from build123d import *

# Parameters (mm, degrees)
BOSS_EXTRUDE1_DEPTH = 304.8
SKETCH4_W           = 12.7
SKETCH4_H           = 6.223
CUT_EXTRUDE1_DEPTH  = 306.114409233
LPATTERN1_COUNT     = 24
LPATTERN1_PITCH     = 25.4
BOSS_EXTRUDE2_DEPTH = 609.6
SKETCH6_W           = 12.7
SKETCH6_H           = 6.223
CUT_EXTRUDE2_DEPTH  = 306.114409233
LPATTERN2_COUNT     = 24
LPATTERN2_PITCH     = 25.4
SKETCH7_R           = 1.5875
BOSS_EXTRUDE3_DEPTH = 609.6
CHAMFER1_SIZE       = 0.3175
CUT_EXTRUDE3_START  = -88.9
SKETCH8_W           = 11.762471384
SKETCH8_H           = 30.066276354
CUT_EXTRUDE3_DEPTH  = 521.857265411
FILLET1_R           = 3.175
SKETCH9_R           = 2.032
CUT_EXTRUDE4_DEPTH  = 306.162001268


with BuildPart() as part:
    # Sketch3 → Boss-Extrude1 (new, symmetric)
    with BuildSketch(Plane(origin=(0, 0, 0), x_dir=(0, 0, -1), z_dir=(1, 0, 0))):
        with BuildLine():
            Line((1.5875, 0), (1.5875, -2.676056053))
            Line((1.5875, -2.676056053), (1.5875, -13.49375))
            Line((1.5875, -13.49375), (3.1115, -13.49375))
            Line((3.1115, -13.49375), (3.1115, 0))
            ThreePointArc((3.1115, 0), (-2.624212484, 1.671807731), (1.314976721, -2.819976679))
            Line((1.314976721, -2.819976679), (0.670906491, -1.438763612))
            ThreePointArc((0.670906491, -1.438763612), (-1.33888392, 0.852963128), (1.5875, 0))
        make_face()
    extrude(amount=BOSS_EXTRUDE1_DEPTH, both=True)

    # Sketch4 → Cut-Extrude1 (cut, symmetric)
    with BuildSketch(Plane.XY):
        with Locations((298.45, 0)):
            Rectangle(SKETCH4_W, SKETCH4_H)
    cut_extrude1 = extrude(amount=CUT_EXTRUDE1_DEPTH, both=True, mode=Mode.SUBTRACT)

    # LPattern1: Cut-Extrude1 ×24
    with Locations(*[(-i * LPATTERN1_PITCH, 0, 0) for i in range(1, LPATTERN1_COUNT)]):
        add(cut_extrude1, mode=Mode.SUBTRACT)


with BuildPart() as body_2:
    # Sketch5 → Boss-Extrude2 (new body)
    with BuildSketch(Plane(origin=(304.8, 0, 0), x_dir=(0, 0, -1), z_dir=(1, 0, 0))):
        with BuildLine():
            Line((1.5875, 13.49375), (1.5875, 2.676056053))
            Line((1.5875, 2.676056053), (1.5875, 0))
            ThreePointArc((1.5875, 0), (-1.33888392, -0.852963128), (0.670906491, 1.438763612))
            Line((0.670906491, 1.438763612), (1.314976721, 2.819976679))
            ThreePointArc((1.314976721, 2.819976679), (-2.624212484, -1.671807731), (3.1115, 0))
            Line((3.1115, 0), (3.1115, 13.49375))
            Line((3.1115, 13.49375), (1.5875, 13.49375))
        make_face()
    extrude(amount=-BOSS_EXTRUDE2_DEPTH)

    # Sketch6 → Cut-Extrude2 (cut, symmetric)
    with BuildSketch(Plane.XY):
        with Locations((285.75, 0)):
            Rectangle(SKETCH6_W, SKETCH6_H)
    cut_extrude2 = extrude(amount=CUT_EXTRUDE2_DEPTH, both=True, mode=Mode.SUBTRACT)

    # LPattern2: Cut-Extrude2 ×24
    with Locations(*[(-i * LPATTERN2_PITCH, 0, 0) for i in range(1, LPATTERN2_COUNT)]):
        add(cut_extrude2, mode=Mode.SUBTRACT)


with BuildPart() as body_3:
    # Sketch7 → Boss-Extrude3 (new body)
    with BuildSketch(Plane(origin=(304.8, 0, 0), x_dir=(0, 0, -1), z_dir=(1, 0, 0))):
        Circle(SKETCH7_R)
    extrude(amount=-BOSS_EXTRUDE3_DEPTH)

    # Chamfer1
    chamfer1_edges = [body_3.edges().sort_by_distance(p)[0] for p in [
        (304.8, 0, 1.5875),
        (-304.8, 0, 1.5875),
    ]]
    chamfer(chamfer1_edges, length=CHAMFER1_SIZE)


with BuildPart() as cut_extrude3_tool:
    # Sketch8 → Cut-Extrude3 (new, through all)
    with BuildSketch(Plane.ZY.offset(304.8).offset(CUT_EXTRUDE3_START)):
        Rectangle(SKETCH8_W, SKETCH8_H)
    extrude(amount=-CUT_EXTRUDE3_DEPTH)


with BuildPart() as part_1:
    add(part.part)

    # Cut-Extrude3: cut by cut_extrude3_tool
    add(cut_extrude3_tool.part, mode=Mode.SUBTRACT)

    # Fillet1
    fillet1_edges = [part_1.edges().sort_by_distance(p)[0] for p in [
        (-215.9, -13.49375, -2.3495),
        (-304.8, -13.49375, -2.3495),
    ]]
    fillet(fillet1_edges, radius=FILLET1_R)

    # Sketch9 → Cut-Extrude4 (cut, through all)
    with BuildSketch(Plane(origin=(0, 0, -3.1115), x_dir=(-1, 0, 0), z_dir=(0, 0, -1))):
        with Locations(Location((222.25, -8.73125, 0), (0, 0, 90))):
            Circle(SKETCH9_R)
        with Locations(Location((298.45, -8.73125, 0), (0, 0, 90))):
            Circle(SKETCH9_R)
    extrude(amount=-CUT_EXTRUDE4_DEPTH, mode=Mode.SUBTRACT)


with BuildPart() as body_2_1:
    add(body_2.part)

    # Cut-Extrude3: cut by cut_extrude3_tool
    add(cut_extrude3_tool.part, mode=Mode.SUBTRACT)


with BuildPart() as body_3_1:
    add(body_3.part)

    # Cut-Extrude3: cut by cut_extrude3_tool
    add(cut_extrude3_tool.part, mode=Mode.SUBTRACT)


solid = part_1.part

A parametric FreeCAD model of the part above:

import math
import FreeCAD as App
import Part
import Sketcher
Q = App.Units.Quantity


def edges_at(feature, points):
    """Names of the edges that pass closest to the given points."""
    edges = feature.Shape.Edges
    near = lambda p: min(range(len(edges)), key=lambda i: edges[i].distToShape(Part.Vertex(*p))[0])
    return sorted({f"Edge{near(p) + 1}" for p in points})


def add_polygon(sketch, points):
    """Adds a closed chain of lines whose ends are joined by coincident constraints."""
    first, n = sketch.GeometryCount, len(points)
    for a, b in zip(points, points[1:] + points[:1]):
        sketch.addGeometry(Part.LineSegment(App.Vector(*a, 0), App.Vector(*b, 0)), False)
    for i in range(n):
        sketch.addConstraint(Sketcher.Constraint("Coincident", first + i, 2, first + (i + 1) % n, 1))

doc = App.newDocument("Part")
body = doc.addObject("PartDesign::Body", "Body")

# Sketch on YZ plane
sketch1 = body.newObject("Sketcher::SketchObject", "Sketch")
sketch1.AttachmentSupport = (doc.getObject("YZ_Plane"), [""])
sketch1.MapMode = "FlatFace"
sketch1.addGeometry([
    Part.LineSegment(App.Vector(0, -1.6, 0), App.Vector(-13.5, -1.6, 0)),  # 0
    Part.LineSegment(App.Vector(-13.5, -1.6, 0), App.Vector(-13.5, -3.1, 0)),  # 1
    Part.LineSegment(App.Vector(-13.5, -3.1, 0), App.Vector(0, -3.1, 0)),  # 2
    Part.ArcOfCircle(Part.Circle(App.Vector(0, 0, 0), App.Vector(0, 0, 1), 3.1), math.radians(-90), math.radians(205)),  # 3
    Part.LineSegment(App.Vector(-2.8, -1.3, 0), App.Vector(-1.4, -0.7, 0)),  # 4
    Part.ArcOfCircle(Part.Circle(App.Vector(0, 0, 0), App.Vector(0, 0, 1), 1.6), math.radians(-90), math.radians(205)),  # 5
], False)
sketch1.addConstraint([
    Sketcher.Constraint("Coincident", 0, 2, 1, 1),
    Sketcher.Constraint("Coincident", 1, 2, 2, 1),
    Sketcher.Constraint("Tangent", 2, 2, 3, 1),
    Sketcher.Constraint("Coincident", 3, 2, 4, 1),
    Sketcher.Constraint("Coincident", 4, 2, 5, 2),
    Sketcher.Constraint("Tangent", 5, 1, 0, 1),
    Sketcher.Constraint("Horizontal", 0),
    Sketcher.Constraint("Vertical", 1),
    Sketcher.Constraint("Horizontal", 2),
    Sketcher.Constraint("Coincident", 3, 3, -1, 1),
    Sketcher.Constraint("Coincident", 5, 3, -1, 1),
    Sketcher.Constraint("Angle", 4, Q("25 deg")),
    Sketcher.Constraint("Radius", 5, Q("0.0625 in")),
    Sketcher.Constraint("DistanceY", 1, 2, 1, 1, Q("0.06 in")),
    Sketcher.Constraint("DistanceX", 0, 2, 0, 1, Q("0.53125 in")),
    Sketcher.Constraint("DistanceX", 3, 2, -1, 1, Q("2.819977 mm")),
])
pad1 = body.newObject("PartDesign::Pad", "Pad")
pad1.Profile = sketch1
pad1.Length = Q("24 in")
pad1.Midplane = True

# Sketch on XY plane
sketch2 = body.newObject("Sketcher::SketchObject", "Sketch001")
sketch2.AttachmentSupport = (doc.getObject("XY_Plane"), [""])
sketch2.MapMode = "FlatFace"
add_polygon(sketch2, [(292, 3), (292, -3), (305, -3), (305, 3)])  # lines 0-3
sketch2.addConstraint([
    Sketcher.Constraint("Vertical", 0),
    Sketcher.Constraint("Horizontal", 1),
    Sketcher.Constraint("Vertical", 2),
    Sketcher.Constraint("Horizontal", 3),
    Sketcher.Constraint("DistanceX", 1, 1, 1, 2, Q("0.5 in")),
    Sketcher.Constraint("DistanceX", -1, 1, 1, 2, Q("12 in")),
    Sketcher.Constraint("DistanceY", 0, 2, 0, 1, Q("0.245 in")),
    Sketcher.Constraint("DistanceY", 0, 2, -1, 1, Q("0.1225 in")),
])
pocket1 = body.newObject("PartDesign::Pocket", "Pocket")
pocket1.Profile = sketch2
pocket1.Length = 612.228818
pocket1.Midplane = True
doc.recompute()

linearpattern = body.newObject("PartDesign::LinearPattern", "LinearPattern")
linearpattern.Originals = [pocket1]
linearpattern.Direction = (doc.getObject("X_Axis"), [""])
linearpattern.Mode = "offset"
linearpattern.Offset = Q("1 in")
linearpattern.Occurrences = 24
linearpattern.Reversed = True
body.Tip = linearpattern
body2 = doc.addObject("PartDesign::Body", "Body001")

# Sketch on YZ plane
sketch3 = body2.newObject("Sketcher::SketchObject", "Sketch002")
sketch3.AttachmentSupport = (doc.getObject("YZ_Plane001"), [""])
sketch3.MapMode = "FlatFace"
sketch3.AttachmentOffset = App.Placement(App.Vector(0, 0, 12 * 25.4), App.Rotation())
sketch3.addGeometry([
    Part.LineSegment(App.Vector(13.5, -1.6, 0), App.Vector(0, -1.6, 0)),  # 0
    Part.ArcOfCircle(Part.Circle(App.Vector(0, 0, 0), App.Vector(0, 0, 1), 1.6), math.radians(-25), math.radians(270)),  # 1
    Part.LineSegment(App.Vector(1.4, -0.7, 0), App.Vector(2.8, -1.3, 0)),  # 2
    Part.ArcOfCircle(Part.Circle(App.Vector(0, 0, 0), App.Vector(0, 0, 1), 3.1), math.radians(-25), math.radians(270)),  # 3
    Part.LineSegment(App.Vector(0, -3.1, 0), App.Vector(13.5, -3.1, 0)),  # 4
    Part.LineSegment(App.Vector(13.5, -3.1, 0), App.Vector(13.5, -1.6, 0)),  # 5
], False)
sketch3.addConstraint([
    Sketcher.Constraint("Tangent", 0, 2, 1, 2),
    Sketcher.Constraint("Coincident", 1, 1, 2, 1),
    Sketcher.Constraint("Coincident", 2, 2, 3, 1),
    Sketcher.Constraint("Tangent", 3, 2, 4, 1),
    Sketcher.Constraint("Coincident", 4, 2, 5, 1),
    Sketcher.Constraint("Coincident", 5, 2, 0, 1),
    Sketcher.Constraint("Horizontal", 0),
    Sketcher.Constraint("Horizontal", 4),
    Sketcher.Constraint("Vertical", 5),
    Sketcher.Constraint("Coincident", 1, 3, -1, 1),
    Sketcher.Constraint("Coincident", 3, 3, -1, 1),
    Sketcher.Constraint("Angle", 2, Q("-25 deg")),
    Sketcher.Constraint("Radius", 1, Q("0.0625 in")),
    Sketcher.Constraint("DistanceY", 5, 1, 5, 2, Q("0.06 in")),
    Sketcher.Constraint("DistanceX", 0, 2, 0, 1, Q("0.53125 in")),
    Sketcher.Constraint("DistanceX", -1, 1, 1, 1, Q("1.438764 mm")),
])
pad2 = body2.newObject("PartDesign::Pad", "Pad001")
pad2.Profile = sketch3
pad2.Length = Q("24 in")
pad2.Reversed = True

# Sketch on XY plane
sketch4 = body2.newObject("Sketcher::SketchObject", "Sketch003")
sketch4.AttachmentSupport = (doc.getObject("XY_Plane001"), [""])
sketch4.MapMode = "FlatFace"
add_polygon(sketch4, [(279, 3), (279, -3), (292, -3), (292, 3)])  # lines 0-3
sketch4.addConstraint([
    Sketcher.Constraint("Vertical", 0),
    Sketcher.Constraint("Horizontal", 1),
    Sketcher.Constraint("Vertical", 2),
    Sketcher.Constraint("Horizontal", 3),
    Sketcher.Constraint("DistanceX", 1, 1, 1, 2, Q("0.5 in")),
    Sketcher.Constraint("DistanceX", -1, 1, 0, 2, Q("11 in")),
    Sketcher.Constraint("DistanceY", 0, 2, 0, 1, Q("0.245 in")),
    Sketcher.Constraint("DistanceY", 0, 2, -1, 1, Q("0.1225 in")),
])
pocket2 = body2.newObject("PartDesign::Pocket", "Pocket001")
pocket2.Profile = sketch4
pocket2.Length = 612.228818
pocket2.Midplane = True
doc.recompute()

linearpattern2 = body2.newObject("PartDesign::LinearPattern", "LinearPattern001")
linearpattern2.Originals = [pocket2]
linearpattern2.Direction = (doc.getObject("X_Axis001"), [""])
linearpattern2.Mode = "offset"
linearpattern2.Offset = Q("1 in")
linearpattern2.Occurrences = 24
linearpattern2.Reversed = True
body2.Tip = linearpattern2
body3 = doc.addObject("PartDesign::Body", "Body002")

# Sketch on YZ plane
sketch5 = body3.newObject("Sketcher::SketchObject", "Sketch004")
sketch5.AttachmentSupport = (doc.getObject("YZ_Plane002"), [""])
sketch5.MapMode = "FlatFace"
sketch5.AttachmentOffset = App.Placement(App.Vector(0, 0, 12 * 25.4), App.Rotation())
sketch5.addGeometry(Part.Circle(App.Vector(0, 0, 0), App.Vector(0, 0, 1), 1.6), False)
sketch5.addConstraint([
    Sketcher.Constraint("Coincident", 0, 3, -1, 1),
    Sketcher.Constraint("Diameter", 0, Q("0.125 in")),
])
pad3 = body3.newObject("PartDesign::Pad", "Pad002")
pad3.Profile = sketch5
pad3.Length = Q("24 in")
pad3.Reversed = True
doc.recompute()

chamfer = body3.newObject("PartDesign::Chamfer", "Chamfer")
chamfer.Base = (pad3, edges_at(pad3, [(304.8, 0, 1.587), (-304.8, 0, 1.587)]))
chamfer.Size = Q("0.0125 in")
body4 = doc.addObject("PartDesign::Body", "Body003")

# Sketch on YZ plane
sketch6 = body4.newObject("Sketcher::SketchObject", "Sketch005")
sketch6.AttachmentSupport = (doc.getObject("YZ_Plane003"), [""])
sketch6.MapMode = "FlatFace"
sketch6.AttachmentOffset = App.Placement(App.Vector(0, 0, -8.5 * 25.4), App.Rotation())
add_polygon(sketch6, [(15, -6), (-15, -6), (-15, 6), (15, 6)])  # lines 0-3
sketch6.addConstraint([
    Sketcher.Constraint("Horizontal", 0),
    Sketcher.Constraint("Vertical", 1),
    Sketcher.Constraint("Horizontal", 2),
    Sketcher.Constraint("Vertical", 3),
    Sketcher.Constraint("Symmetric", 0, 2, 2, 2, -1, 1),
    Sketcher.Constraint("DistanceY", 1, 1, 1, 2, Q("11.762471 mm")),
    Sketcher.Constraint("DistanceX", 0, 2, 0, 1, Q("30.066276 mm")),
])
pad4 = body4.newObject("PartDesign::Pad", "Pad003")
pad4.Profile = sketch6
pad4.Length = 521.857265
doc.recompute()

body5 = doc.addObject("PartDesign::Body", "Body004")
body5.BaseFeature = body4
boolean = body.newObject("PartDesign::Boolean", "Boolean")
boolean.Type = "Cut"
boolean.addObjects([body5])
doc.recompute()

fillet = body.newObject("PartDesign::Fillet", "Fillet")
fillet.Base = (boolean, edges_at(boolean, [(-215.9, -13.494, -2.349), (-304.8, -13.494, -2.349)]))
fillet.Radius = Q("0.125 in")

# Sketch on XY plane
sketch7 = body.newObject("Sketcher::SketchObject", "Sketch006")
sketch7.AttachmentSupport = (doc.getObject("XY_Plane"), [""])
sketch7.MapMode = "FlatFace"
sketch7.AttachmentOffset = App.Placement(App.Vector(0, 0, -0.1225 * 25.4), App.Rotation())
sketch7.addGeometry([
    Part.Circle(App.Vector(-222.2, -8.7, 0), App.Vector(0, 0, 1), 2),
    Part.Circle(App.Vector(-298.4, -8.7, 0), App.Vector(0, 0, 1), 2),
], False)
sketch7.addConstraint([
    Sketcher.Constraint("Equal", 0, 1),
    Sketcher.Constraint("Horizontal", 0, 3, 1, 3),
    Sketcher.Constraint("Diameter", 0, Q("0.16 in")),
    Sketcher.Constraint("DistanceX", 1, 3, 0, 3, Q("3 in")),
    Sketcher.Constraint("DistanceX", 0, 3, -1, 1, Q("8.75 in")),
    Sketcher.Constraint("DistanceY", 0, 3, -1, 1, Q("0.34375 in")),
])
pocket3 = body.newObject("PartDesign::Pocket", "Pocket002")
pocket3.Profile = sketch7
pocket3.Type = "ThroughAll"
pocket3.Reversed = True
doc.recompute()

body6 = doc.addObject("PartDesign::Body", "Body005")
body6.BaseFeature = body4
boolean2 = body2.newObject("PartDesign::Boolean", "Boolean001")
boolean2.Type = "Cut"
boolean2.addObjects([body6])
doc.recompute()

boolean3 = body3.newObject("PartDesign::Boolean", "Boolean002")
boolean3.Type = "Cut"
boolean3.addObjects([body4])
body2.Visibility = False
body3.Visibility = False

doc.recompute()
